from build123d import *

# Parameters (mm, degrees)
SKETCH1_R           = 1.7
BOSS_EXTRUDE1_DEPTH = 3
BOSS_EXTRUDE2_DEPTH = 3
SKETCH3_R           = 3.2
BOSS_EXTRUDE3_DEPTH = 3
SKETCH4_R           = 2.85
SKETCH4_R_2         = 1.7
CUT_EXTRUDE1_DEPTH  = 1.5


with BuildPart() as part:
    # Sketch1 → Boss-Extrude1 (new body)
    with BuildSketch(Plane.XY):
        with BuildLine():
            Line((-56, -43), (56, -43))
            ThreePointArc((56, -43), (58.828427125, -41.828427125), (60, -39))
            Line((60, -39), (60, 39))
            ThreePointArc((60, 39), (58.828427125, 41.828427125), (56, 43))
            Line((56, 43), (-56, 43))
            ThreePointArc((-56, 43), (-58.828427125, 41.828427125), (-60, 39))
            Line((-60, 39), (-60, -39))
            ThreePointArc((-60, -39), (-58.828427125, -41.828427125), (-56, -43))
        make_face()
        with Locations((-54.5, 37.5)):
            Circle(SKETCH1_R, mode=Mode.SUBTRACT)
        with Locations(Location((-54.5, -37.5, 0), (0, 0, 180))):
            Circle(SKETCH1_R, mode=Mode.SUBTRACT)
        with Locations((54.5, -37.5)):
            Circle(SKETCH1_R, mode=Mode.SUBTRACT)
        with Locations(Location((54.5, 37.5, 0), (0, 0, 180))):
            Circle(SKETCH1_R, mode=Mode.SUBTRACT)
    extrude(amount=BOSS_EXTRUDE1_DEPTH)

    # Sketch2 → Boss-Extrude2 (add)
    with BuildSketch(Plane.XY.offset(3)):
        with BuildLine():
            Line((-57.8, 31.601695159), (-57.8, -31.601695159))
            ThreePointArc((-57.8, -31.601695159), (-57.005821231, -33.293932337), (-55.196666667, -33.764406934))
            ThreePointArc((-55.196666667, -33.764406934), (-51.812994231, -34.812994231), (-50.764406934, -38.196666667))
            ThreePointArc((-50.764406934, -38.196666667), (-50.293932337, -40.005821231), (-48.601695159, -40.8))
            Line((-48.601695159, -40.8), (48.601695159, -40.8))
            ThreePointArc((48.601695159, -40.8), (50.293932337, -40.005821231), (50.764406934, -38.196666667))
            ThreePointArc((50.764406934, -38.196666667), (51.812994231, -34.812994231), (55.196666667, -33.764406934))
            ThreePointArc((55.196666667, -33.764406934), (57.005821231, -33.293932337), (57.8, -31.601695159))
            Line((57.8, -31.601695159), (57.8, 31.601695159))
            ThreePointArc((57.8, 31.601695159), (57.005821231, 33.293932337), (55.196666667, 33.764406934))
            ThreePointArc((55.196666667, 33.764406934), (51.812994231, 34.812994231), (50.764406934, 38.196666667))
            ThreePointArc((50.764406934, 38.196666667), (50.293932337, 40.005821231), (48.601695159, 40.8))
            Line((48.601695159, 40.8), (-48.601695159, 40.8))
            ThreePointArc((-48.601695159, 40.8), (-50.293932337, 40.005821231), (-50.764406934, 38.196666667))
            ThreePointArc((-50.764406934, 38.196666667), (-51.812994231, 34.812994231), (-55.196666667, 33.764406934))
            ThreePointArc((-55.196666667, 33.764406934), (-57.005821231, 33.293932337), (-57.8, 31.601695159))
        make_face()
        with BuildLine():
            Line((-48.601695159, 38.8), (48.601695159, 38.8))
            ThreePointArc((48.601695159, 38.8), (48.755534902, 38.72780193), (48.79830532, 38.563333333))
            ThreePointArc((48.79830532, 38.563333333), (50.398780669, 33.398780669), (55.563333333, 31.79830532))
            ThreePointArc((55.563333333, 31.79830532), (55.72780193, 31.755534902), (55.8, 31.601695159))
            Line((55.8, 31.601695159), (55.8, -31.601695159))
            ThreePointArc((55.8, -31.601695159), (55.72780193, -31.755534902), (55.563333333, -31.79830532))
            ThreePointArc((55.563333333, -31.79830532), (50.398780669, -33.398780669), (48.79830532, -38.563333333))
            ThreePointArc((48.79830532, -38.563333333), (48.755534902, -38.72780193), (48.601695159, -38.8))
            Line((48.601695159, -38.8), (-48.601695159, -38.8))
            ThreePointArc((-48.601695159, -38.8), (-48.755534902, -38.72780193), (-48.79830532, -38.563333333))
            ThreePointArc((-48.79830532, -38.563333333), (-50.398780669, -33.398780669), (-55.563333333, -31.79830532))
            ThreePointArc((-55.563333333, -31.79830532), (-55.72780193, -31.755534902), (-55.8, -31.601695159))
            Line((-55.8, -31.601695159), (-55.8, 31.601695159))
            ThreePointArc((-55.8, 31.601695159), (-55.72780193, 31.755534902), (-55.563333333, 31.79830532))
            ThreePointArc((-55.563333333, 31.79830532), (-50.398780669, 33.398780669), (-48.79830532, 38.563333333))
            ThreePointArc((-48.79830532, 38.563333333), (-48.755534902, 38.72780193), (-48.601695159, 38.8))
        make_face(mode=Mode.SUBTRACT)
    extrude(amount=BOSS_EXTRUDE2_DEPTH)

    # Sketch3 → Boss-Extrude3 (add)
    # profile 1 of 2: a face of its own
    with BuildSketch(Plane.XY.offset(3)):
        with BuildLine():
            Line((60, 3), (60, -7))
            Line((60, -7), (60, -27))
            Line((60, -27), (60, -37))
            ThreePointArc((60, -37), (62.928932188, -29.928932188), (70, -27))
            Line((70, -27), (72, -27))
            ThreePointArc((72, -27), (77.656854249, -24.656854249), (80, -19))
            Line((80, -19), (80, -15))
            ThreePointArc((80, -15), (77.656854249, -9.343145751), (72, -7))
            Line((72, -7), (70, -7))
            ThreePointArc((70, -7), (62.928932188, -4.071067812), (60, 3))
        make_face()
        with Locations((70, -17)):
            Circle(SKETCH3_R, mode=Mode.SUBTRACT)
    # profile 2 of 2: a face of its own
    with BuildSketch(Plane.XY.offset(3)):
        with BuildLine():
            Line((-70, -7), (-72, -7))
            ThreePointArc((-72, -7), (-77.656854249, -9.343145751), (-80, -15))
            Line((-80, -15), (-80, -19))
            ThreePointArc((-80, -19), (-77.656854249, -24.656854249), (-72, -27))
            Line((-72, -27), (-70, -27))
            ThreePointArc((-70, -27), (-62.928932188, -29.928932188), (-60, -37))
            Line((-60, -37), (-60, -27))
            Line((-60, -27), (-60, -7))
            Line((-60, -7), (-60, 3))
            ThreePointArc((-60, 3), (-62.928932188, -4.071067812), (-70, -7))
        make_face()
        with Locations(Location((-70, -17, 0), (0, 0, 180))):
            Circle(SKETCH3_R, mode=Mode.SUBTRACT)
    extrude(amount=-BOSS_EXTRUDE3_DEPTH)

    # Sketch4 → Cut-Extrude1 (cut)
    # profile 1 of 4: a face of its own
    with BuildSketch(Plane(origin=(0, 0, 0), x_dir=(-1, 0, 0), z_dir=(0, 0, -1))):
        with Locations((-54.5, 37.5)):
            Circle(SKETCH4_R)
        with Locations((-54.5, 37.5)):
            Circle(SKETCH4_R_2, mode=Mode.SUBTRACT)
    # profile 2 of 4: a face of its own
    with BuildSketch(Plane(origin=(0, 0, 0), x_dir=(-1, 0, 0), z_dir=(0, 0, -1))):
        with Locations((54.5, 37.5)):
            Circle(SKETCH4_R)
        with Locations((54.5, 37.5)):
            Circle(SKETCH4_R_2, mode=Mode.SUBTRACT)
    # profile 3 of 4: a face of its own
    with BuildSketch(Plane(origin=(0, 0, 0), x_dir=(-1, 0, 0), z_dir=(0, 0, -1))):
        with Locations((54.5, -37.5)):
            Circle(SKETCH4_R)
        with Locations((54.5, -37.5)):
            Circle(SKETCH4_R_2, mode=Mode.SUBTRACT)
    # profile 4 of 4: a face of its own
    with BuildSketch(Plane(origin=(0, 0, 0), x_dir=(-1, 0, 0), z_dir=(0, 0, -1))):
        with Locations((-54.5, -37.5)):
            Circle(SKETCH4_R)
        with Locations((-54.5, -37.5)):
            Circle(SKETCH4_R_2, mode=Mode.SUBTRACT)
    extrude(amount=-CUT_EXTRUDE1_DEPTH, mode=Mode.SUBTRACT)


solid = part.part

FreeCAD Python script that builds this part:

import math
import FreeCAD as App
import Part
import Sketcher

doc = App.newDocument("Part")
body = doc.addObject("PartDesign::Body", "Body")

# Sketch on XY plane
sketch1 = body.newObject("Sketcher::SketchObject", "Sketch")
sketch1.AttachmentSupport = (doc.getObject("XY_Plane"), [""])
sketch1.MapMode = "FlatFace"
sketch1.addGeometry(Part.LineSegment(App.Vector(-56, -43, 0), App.Vector(56, -43, 0)), False)
sketch1.addGeometry(Part.ArcOfCircle(Part.Circle(App.Vector(56, -39, 0), App.Vector(0, 0, 1), 4), math.radians(-90), math.radians(0)), False)
sketch1.addGeometry(Part.LineSegment(App.Vector(60, -39, 0), App.Vector(60, 39, 0)), False)
sketch1.addGeometry(Part.ArcOfCircle(Part.Circle(App.Vector(56, 39, 0), App.Vector(0, 0, 1), 4), math.radians(0), math.radians(90)), False)
sketch1.addGeometry(Part.LineSegment(App.Vector(56, 43, 0), App.Vector(-56, 43, 0)), False)
sketch1.addGeometry(Part.ArcOfCircle(Part.Circle(App.Vector(-56, 39, 0), App.Vector(0, 0, 1), 4), math.radians(90), math.radians(180)), False)
sketch1.addGeometry(Part.LineSegment(App.Vector(-60, 39, 0), App.Vector(-60, -39, 0)), False)
sketch1.addGeometry(Part.ArcOfCircle(Part.Circle(App.Vector(-56, -39, 0), App.Vector(0, 0, 1), 4), math.radians(180), math.radians(270)), False)
sketch1.addGeometry(Part.Circle(App.Vector(-54.5, -37.5, 0), App.Vector(0, 0, 1), 1.7), False)
sketch1.addGeometry(Part.Circle(App.Vector(54.5, -37.5, 0), App.Vector(0, 0, 1), 1.7), False)
sketch1.addGeometry(Part.Circle(App.Vector(-54.5, 37.5, 0), App.Vector(0, 0, 1), 1.7), False)
sketch1.addGeometry(Part.Circle(App.Vector(54.5, 37.5, 0), App.Vector(0, 0, 1), 1.7), False)
sketch1.addConstraint(Sketcher.Constraint("Tangent", 0, 2, 1, 1))
sketch1.addConstraint(Sketcher.Constraint("Tangent", 1, 2, 2, 1))
sketch1.addConstraint(Sketcher.Constraint("Tangent", 2, 2, 3, 1))
sketch1.addConstraint(Sketcher.Constraint("Tangent", 3, 2, 4, 1))
sketch1.addConstraint(Sketcher.Constraint("Tangent", 4, 2, 5, 1))
sketch1.addConstraint(Sketcher.Constraint("Tangent", 5, 2, 6, 1))
sketch1.addConstraint(Sketcher.Constraint("Tangent", 6, 2, 7, 1))
sketch1.addConstraint(Sketcher.Constraint("Tangent", 7, 2, 0, 1))
sketch1.addConstraint(Sketcher.Constraint("Horizontal", 0))
sketch1.addConstraint(Sketcher.Constraint("Vertical", 2))
sketch1.addConstraint(Sketcher.Constraint("Horizontal", 4))
sketch1.addConstraint(Sketcher.Constraint("Vertical", 6))
sketch1.addConstraint(Sketcher.Constraint("Equal", 1, 3))
sketch1.addConstraint(Sketcher.Constraint("Equal", 3, 5))
sketch1.addConstraint(Sketcher.Constraint("Equal", 5, 7))
sketch1.addConstraint(Sketcher.Constraint("Equal", 8, 9))
sketch1.addConstraint(Sketcher.Constraint("Equal", 9, 10))
sketch1.addConstraint(Sketcher.Constraint("Equal", 10, 11))
sketch1.addConstraint(Sketcher.Constraint("Symmetric", 1, 3, 5, 3, -1, 1))
sketch1.addConstraint(Sketcher.Constraint("Symmetric", 9, 3, 10, 3, -1, 1))
sketch1.addConstraint(Sketcher.Constraint("Symmetric", 8, 3, 11, 3, -1, 1))
sketch1.addConstraint(Sketcher.Constraint("Symmetric", 8, 3, 9, 3, -2))
sketch1.addConstraint(Sketcher.Constraint("Radius", 1, 4.0))
sketch1.addConstraint(Sketcher.Constraint("Diameter", 8, 3.4))
sketch1.addConstraint(Sketcher.Constraint("DistanceX", 0, 1, 0, 2, 112.0))
sketch1.addConstraint(Sketcher.Constraint("DistanceY", 2, 1, 2, 2, 78.0))
sketch1.addConstraint(Sketcher.Constraint("DistanceX", 8, 3, 9, 3, 109.0))
sketch1.addConstraint(Sketcher.Constraint("DistanceY", 8, 3, 10, 3, 75.0))
pad1 = body.newObject("PartDesign::Pad", "Pad")
pad1.Profile = sketch1
pad1.Length = 3

# Sketch on XY plane
sketch2 = body.newObject("Sketcher::SketchObject", "Sketch001")
sketch2.AttachmentSupport = (doc.getObject("XY_Plane"), [""])
sketch2.MapMode = "FlatFace"
sketch2.AttachmentOffset = App.Placement(App.Vector(0, 0, 3), App.Rotation())
sketch2.addGeometry(Part.LineSegment(App.Vector(-57.8, 31.6, 0), App.Vector(-57.8, -31.6, 0)), False)
sketch2.addGeometry(Part.ArcOfCircle(Part.Circle(App.Vector(-55.6, -31.6, 0), App.Vector(0, 0, 1), 2.2), math.radians(180), math.radians(281)), False)
sketch2.addGeometry(Part.ArcOfCircle(Part.Circle(App.Vector(-54.5, -37.5, 0), App.Vector(0, 0, 1), 3.8), math.radians(-11), math.radians(101)), False)
sketch2.addGeometry(Part.ArcOfCircle(Part.Circle(App.Vector(-48.6, -38.6, 0), App.Vector(0, 0, 1), 2.2), math.radians(169), math.radians(270)), False)
sketch2.addGeometry(Part.LineSegment(App.Vector(-48.6, -40.8, 0), App.Vector(48.6, -40.8, 0)), False)
sketch2.addGeometry(Part.ArcOfCircle(Part.Circle(App.Vector(48.6, -38.6, 0), App.Vector(0, 0, 1), 2.2), math.radians(-90), math.radians(11)), False)
sketch2.addGeometry(Part.ArcOfCircle(Part.Circle(App.Vector(54.5, -37.5, 0), App.Vector(0, 0, 1), 3.8), math.radians(79), math.radians(191)), False)
sketch2.addGeometry(Part.ArcOfCircle(Part.Circle(App.Vector(55.6, -31.6, 0), App.Vector(0, 0, 1), 2.2), math.radians(-101), math.radians(0)), False)
sketch2.addGeometry(Part.LineSegment(App.Vector(57.8, -31.6, 0), App.Vector(57.8, 31.6, 0)), False)
sketch2.addGeometry(Part.ArcOfCircle(Part.Circle(App.Vector(55.6, 31.6, 0), App.Vector(0, 0, 1), 2.2), math.radians(0), math.radians(101)), False)
sketch2.addGeometry(Part.ArcOfCircle(Part.Circle(App.Vector(54.5, 37.5, 0), App.Vector(0, 0, 1), 3.8), math.radians(169), math.radians(281)), False)
sketch2.addGeometry(Part.ArcOfCircle(Part.Circle(App.Vector(48.6, 38.6, 0), App.Vector(0, 0, 1), 2.2), math.radians(-11), math.radians(90)), False)
sketch2.addGeometry(Part.LineSegment(App.Vector(48.6, 40.8, 0), App.Vector(-48.6, 40.8, 0)), False)
sketch2.addGeometry(Part.ArcOfCircle(Part.Circle(App.Vector(-48.6, 38.6, 0), App.Vector(0, 0, 1), 2.2), math.radians(90), math.radians(191)), False)
sketch2.addGeometry(Part.ArcOfCircle(Part.Circle(App.Vector(-54.5, 37.5, 0), App.Vector(0, 0, 1), 3.8), math.radians(-101), math.radians(11)), False)
sketch2.addGeometry(Part.ArcOfCircle(Part.Circle(App.Vector(-55.6, 31.6, 0), App.Vector(0, 0, 1), 2.2), math.radians(79), math.radians(180)), False)
sketch2.addGeometry(Part.ArcOfCircle(Part.Circle(App.Vector(-48.6, 38.6, 0), App.Vector(0, 0, 1), 0.2), math.radians(90), math.radians(191)), False)
sketch2.addGeometry(Part.LineSegment(App.Vector(-48.6, 38.8, 0), App.Vector(48.6, 38.8, 0)), False)
sketch2.addGeometry(Part.ArcOfCircle(Part.Circle(App.Vector(48.6, 38.6, 0), App.Vector(0, 0, 1), 0.2), math.radians(-11), math.radians(90)), False)
sketch2.addGeometry(Part.ArcOfCircle(Part.Circle(App.Vector(54.5, 37.5, 0), App.Vector(0, 0, 1), 5.8), math.radians(169), math.radians(281)), False)
sketch2.addGeometry(Part.ArcOfCircle(Part.Circle(App.Vector(55.6, 31.6, 0), App.Vector(0, 0, 1), 0.2), math.radians(0), math.radians(101)), False)
sketch2.addGeometry(Part.LineSegment(App.Vector(55.8, 31.6, 0), App.Vector(55.8, -31.6, 0)), False)
sketch2.addGeometry(Part.ArcOfCircle(Part.Circle(App.Vector(55.6, -31.6, 0), App.Vector(0, 0, 1), 0.2), math.radians(-101), math.radians(0)), False)
sketch2.addGeometry(Part.ArcOfCircle(Part.Circle(App.Vector(54.5, -37.5, 0), App.Vector(0, 0, 1), 5.8), math.radians(79), math.radians(191)), False)
sketch2.addGeometry(Part.ArcOfCircle(Part.Circle(App.Vector(48.6, -38.6, 0), App.Vector(0, 0, 1), 0.2), math.radians(-90), math.radians(11)), False)
sketch2.addGeometry(Part.LineSegment(App.Vector(48.6, -38.8, 0), App.Vector(-48.6, -38.8, 0)), False)
sketch2.addGeometry(Part.ArcOfCircle(Part.Circle(App.Vector(-48.6, -38.6, 0), App.Vector(0, 0, 1), 0.2), math.radians(169), math.radians(270)), False)
sketch2.addGeometry(Part.ArcOfCircle(Part.Circle(App.Vector(-54.5, -37.5, 0), App.Vector(0, 0, 1), 5.8), math.radians(-11), math.radians(101)), False)
sketch2.addGeometry(Part.ArcOfCircle(Part.Circle(App.Vector(-55.6, -31.6, 0), App.Vector(0, 0, 1), 0.2), math.radians(-180), math.radians(-79)), False)
sketch2.addGeometry(Part.LineSegment(App.Vector(-55.8, -31.6, 0), App.Vector(-55.8, 31.6, 0)), False)
sketch2.addGeometry(Part.ArcOfCircle(Part.Circle(App.Vector(-55.6, 31.6, 0), App.Vector(0, 0, 1), 0.2), math.radians(79), math.radians(180)), False)
sketch2.addGeometry(Part.ArcOfCircle(Part.Circle(App.Vector(-54.5, 37.5, 0), App.Vector(0, 0, 1), 5.8), math.radians(-101), math.radians(11)), False)
sketch2.addConstraint(Sketcher.Constraint("Tangent", 0, 2, 1, 1))
sketch2.addConstraint(Sketcher.Constraint("Tangent", 1, 2, 2, 2))
sketch2.addConstraint(Sketcher.Constraint("Tangent", 2, 1, 3, 1))
sketch2.addConstraint(Sketcher.Constraint("Tangent", 3, 2, 4, 1))
sketch2.addConstraint(Sketcher.Constraint("Tangent", 4, 2, 5, 1))
sketch2.addConstraint(Sketcher.Constraint("Tangent", 5, 2, 6, 2))
sketch2.addConstraint(Sketcher.Constraint("Tangent", 6, 1, 7, 1))
sketch2.addConstraint(Sketcher.Constraint("Tangent", 7, 2, 8, 1))
sketch2.addConstraint(Sketcher.Constraint("Tangent", 8, 2, 9, 1))
sketch2.addConstraint(Sketcher.Constraint("Tangent", 9, 2, 10, 2))
sketch2.addConstraint(Sketcher.Constraint("Tangent", 10, 1, 11, 1))
sketch2.addConstraint(Sketcher.Constraint("Tangent", 11, 2, 12, 1))
sketch2.addConstraint(Sketcher.Constraint("Tangent", 12, 2, 13, 1))
sketch2.addConstraint(Sketcher.Constraint("Tangent", 13, 2, 14, 2))
sketch2.addConstraint(Sketcher.Constraint("Tangent", 14, 1, 15, 1))
sketch2.addConstraint(Sketcher.Constraint("Tangent", 15, 2, 0, 1))
sketch2.addConstraint(Sketcher.Constraint("Tangent", 16, 1, 17, 1))
sketch2.addConstraint(Sketcher.Constraint("Tangent", 17, 2, 18, 2))
sketch2.addConstraint(Sketcher.Constraint("Tangent", 18, 1, 19, 1))
sketch2.addConstraint(Sketcher.Constraint("Tangent", 19, 2, 20, 2))
sketch2.addConstraint(Sketcher.Constraint("Tangent", 20, 1, 21, 1))
sketch2.addConstraint(Sketcher.Constraint("Tangent", 21, 2, 22, 2))
sketch2.addConstraint(Sketcher.Constraint("Tangent", 22, 1, 23, 1))
sketch2.addConstraint(Sketcher.Constraint("Tangent", 23, 2, 24, 2))
sketch2.addConstraint(Sketcher.Constraint("Tangent", 24, 1, 25, 1))
sketch2.addConstraint(Sketcher.Constraint("Tangent", 25, 2, 26, 2))
sketch2.addConstraint(Sketcher.Constraint("Tangent", 26, 1, 27, 1))
sketch2.addConstraint(Sketcher.Constraint("Tangent", 27, 2, 28, 2))
sketch2.addConstraint(Sketcher.Constraint("Tangent", 28, 1, 29, 1))
sketch2.addConstraint(Sketcher.Constraint("Tangent", 29, 2, 30, 2))
sketch2.addConstraint(Sketcher.Constraint("Tangent", 30, 1, 31, 1))
sketch2.addConstraint(Sketcher.Constraint("Tangent", 31, 2, 16, 2))
sketch2.addConstraint(Sketcher.Constraint("Vertical", 0))
sketch2.addConstraint(Sketcher.Constraint("Horizontal", 4))
sketch2.addConstraint(Sketcher.Constraint("Vertical", 8))
sketch2.addConstraint(Sketcher.Constraint("Horizontal", 12))
sketch2.addConstraint(Sketcher.Constraint("Horizontal", 17))
sketch2.addConstraint(Sketcher.Constraint("Vertical", 21))
sketch2.addConstraint(Sketcher.Constraint("Horizontal", 25))
sketch2.addConstraint(Sketcher.Constraint("Vertical", 29))
sketch2.addConstraint(Sketcher.Constraint("Coincident", 16, 3, 13, 3))
sketch2.addConstraint(Sketcher.Constraint("Coincident", 18, 3, 11, 3))
sketch2.addConstraint(Sketcher.Constraint("Coincident", 19, 3, 10, 3))
sketch2.addConstraint(Sketcher.Constraint("Coincident", 20, 3, 9, 3))
sketch2.addConstraint(Sketcher.Constraint("Coincident", 22, 3, 7, 3))
sketch2.addConstraint(Sketcher.Constraint("Coincident", 23, 3, 6, 3))
sketch2.addConstraint(Sketcher.Constraint("Coincident", 24, 3, 5, 3))
sketch2.addConstraint(Sketcher.Constraint("Coincident", 26, 3, 3, 3))
sketch2.addConstraint(Sketcher.Constraint("Coincident", 27, 3, 2, 3))
sketch2.addConstraint(Sketcher.Constraint("Coincident", 28, 3, 1, 3))
sketch2.addConstraint(Sketcher.Constraint("Coincident", 30, 3, 15, 3))
sketch2.addConstraint(Sketcher.Constraint("Equal", 1, 3))
sketch2.addConstraint(Sketcher.Constraint("Equal", 3, 5))
sketch2.addConstraint(Sketcher.Constraint("Equal", 2, 6))
sketch2.addConstraint(Sketcher.Constraint("Equal", 5, 7))
sketch2.addConstraint(Sketcher.Constraint("Equal", 7, 9))
sketch2.addConstraint(Sketcher.Constraint("Equal", 6, 10))
sketch2.addConstraint(Sketcher.Constraint("Equal", 9, 11))
sketch2.addConstraint(Sketcher.Constraint("Equal", 11, 13))
sketch2.addConstraint(Sketcher.Constraint("Equal", 10, 14))
sketch2.addConstraint(Sketcher.Constraint("Equal", 13, 15))
sketch2.addConstraint(Sketcher.Constraint("Equal", 27, 31))
sketch2.addConstraint(Sketcher.Constraint("Symmetric", 1, 3, 9, 3, -1, 1))
sketch2.addConstraint(Sketcher.Constraint("Symmetric", 3, 3, 11, 3, -1, 1))
sketch2.addConstraint(Sketcher.Constraint("Symmetric", 6, 3, 14, 3, -1, 1))
sketch2.addConstraint(Sketcher.Constraint("Symmetric", 2, 3, 6, 3, -2))
sketch2.addConstraint(Sketcher.Constraint("Radius", 1, 2.2))
sketch2.addConstraint(Sketcher.Constraint("Radius", 2, 3.8))
sketch2.addConstraint(Sketcher.Constraint("Radius", 16, 0.2))
sketch2.addConstraint(Sketcher.Constraint("DistanceX", 2, 3, 6, 3, 109.0))
sketch2.addConstraint(Sketcher.Constraint("DistanceY", 6, 3, 10, 3, 75.0))
sketch2.addConstraint(Sketcher.Constraint("DistanceX", 1, 3, -1, 1, 55.6))
sketch2.addConstraint(Sketcher.Constraint("DistanceY", 3, 3, -1, 1, 38.6))
pad2 = body.newObject("PartDesign::Pad", "Pad001")
pad2.Profile = sketch2
pad2.Length = 3

# Sketch on XY plane
sketch3 = body.newObject("Sketcher::SketchObject", "Sketch002")
sketch3.AttachmentSupport = (doc.getObject("XY_Plane"), [""])
sketch3.MapMode = "FlatFace"
sketch3.AttachmentOffset = App.Placement(App.Vector(0, 0, 3), App.Rotation())
sketch3.addGeometry(Part.LineSegment(App.Vector(60, 3, 0), App.Vector(60, -37, 0)), False)
sketch3.addGeometry(Part.ArcOfCircle(Part.Circle(App.Vector(70, -37, 0), App.Vector(0, 0, 1), 10), math.radians(90), math.radians(180)), False)
sketch3.addGeometry(Part.LineSegment(App.Vector(70, -27, 0), App.Vector(72, -27, 0)), False)
sketch3.addGeometry(Part.ArcOfCircle(Part.Circle(App.Vector(72, -19, 0), App.Vector(0, 0, 1), 8), math.radians(-90), math.radians(0)), False)
sketch3.addGeometry(Part.LineSegment(App.Vector(80, -19, 0), App.Vector(80, -15, 0)), False)
sketch3.addGeometry(Part.ArcOfCircle(Part.Circle(App.Vector(72, -15, 0), App.Vector(0, 0, 1), 8), math.radians(0), math.radians(90)), False)
sketch3.addGeometry(Part.LineSegment(App.Vector(72, -7, 0), App.Vector(70, -7, 0)), False)
sketch3.addGeometry(Part.ArcOfCircle(Part.Circle(App.Vector(70, 3, 0), App.Vector(0, 0, 1), 10), math.radians(180), math.radians(270)), False)
sketch3.addGeometry(Part.Circle(App.Vector(70, -17, 0), App.Vector(0, 0, 1), 3.2), False)
sketch3.addGeometry(Part.LineSegment(App.Vector(-70, -7, 0), App.Vector(-72, -7, 0)), False)
sketch3.addGeometry(Part.ArcOfCircle(Part.Circle(App.Vector(-72, -15, 0), App.Vector(0, 0, 1), 8), math.radians(90), math.radians(180)), False)
sketch3.addGeometry(Part.LineSegment(App.Vector(-80, -15, 0), App.Vector(-80, -19, 0)), False)
sketch3.addGeometry(Part.ArcOfCircle(Part.Circle(App.Vector(-72, -19, 0), App.Vector(0, 0, 1), 8), math.radians(-180), math.radians(-90)), False)
sketch3.addGeometry(Part.LineSegment(App.Vector(-72, -27, 0), App.Vector(-70, -27, 0)), False)
sketch3.addGeometry(Part.ArcOfCircle(Part.Circle(App.Vector(-70, -37, 0), App.Vector(0, 0, 1), 10), math.radians(0), math.radians(90)), False)
sketch3.addGeometry(Part.LineSegment(App.Vector(-60, -37, 0), App.Vector(-60, 3, 0)), False)
sketch3.addGeometry(Part.ArcOfCircle(Part.Circle(App.Vector(-70, 3, 0), App.Vector(0, 0, 1), 10), math.radians(-90), math.radians(0)), False)
sketch3.addGeometry(Part.Circle(App.Vector(-70, -17, 0), App.Vector(0, 0, 1), 3.2), False)
sketch3.addConstraint(Sketcher.Constraint("Tangent", 0, 2, 1, 2))
sketch3.addConstraint(Sketcher.Constraint("Tangent", 1, 1, 2, 1))
sketch3.addConstraint(Sketcher.Constraint("Tangent", 2, 2, 3, 1))
sketch3.addConstraint(Sketcher.Constraint("Tangent", 3, 2, 4, 1))
sketch3.addConstraint(Sketcher.Constraint("Tangent", 4, 2, 5, 1))
sketch3.addConstraint(Sketcher.Constraint("Tangent", 5, 2, 6, 1))
sketch3.addConstraint(Sketcher.Constraint("Tangent", 6, 2, 7, 2))
sketch3.addConstraint(Sketcher.Constraint("Tangent", 7, 1, 0, 1))
sketch3.addConstraint(Sketcher.Constraint("Tangent", 9, 2, 10, 1))
sketch3.addConstraint(Sketcher.Constraint("Tangent", 10, 2, 11, 1))
sketch3.addConstraint(Sketcher.Constraint("Tangent", 11, 2, 12, 1))
sketch3.addConstraint(Sketcher.Constraint("Tangent", 12, 2, 13, 1))
sketch3.addConstraint(Sketcher.Constraint("Tangent", 13, 2, 14, 2))
sketch3.addConstraint(Sketcher.Constraint("Tangent", 14, 1, 15, 1))
sketch3.addConstraint(Sketcher.Constraint("Tangent", 15, 2, 16, 2))
sketch3.addConstraint(Sketcher.Constraint("Tangent", 16, 1, 9, 1))
sketch3.addConstraint(Sketcher.Constraint("Vertical", 0))
sketch3.addConstraint(Sketcher.Constraint("Horizontal", 2))
sketch3.addConstraint(Sketcher.Constraint("Vertical", 4))
sketch3.addConstraint(Sketcher.Constraint("Horizontal", 6))
sketch3.addConstraint(Sketcher.Constraint("Horizontal", 9))
sketch3.addConstraint(Sketcher.Constraint("Vertical", 11))
sketch3.addConstraint(Sketcher.Constraint("Horizontal", 13))
sketch3.addConstraint(Sketcher.Constraint("Vertical", 15))
sketch3.addConstraint(Sketcher.Constraint("Equal", 3, 5))
sketch3.addConstraint(Sketcher.Constraint("Equal", 1, 7))
sketch3.addConstraint(Sketcher.Constraint("Equal", 5, 10))
sketch3.addConstraint(Sketcher.Constraint("Equal", 10, 12))
sketch3.addConstraint(Sketcher.Constraint("Equal", 7, 14))
sketch3.addConstraint(Sketcher.Constraint("Equal", 14, 16))
sketch3.addConstraint(Sketcher.Constraint("Equal", 8, 17))
sketch3.addConstraint(Sketcher.Constraint("Symmetric", 5, 3, 10, 3, -2))
sketch3.addConstraint(Sketcher.Constraint("Symmetric", 1, 3, 14, 3, -2))
sketch3.addConstraint(Sketcher.Constraint("Symmetric", 8, 3, 17, 3, -2))
sketch3.addConstraint(Sketcher.Constraint("Vertical", 7, 3, 8, 3))
sketch3.addConstraint(Sketcher.Constraint("Radius", 1, 10.0))
sketch3.addConstraint(Sketcher.Constraint("Radius", 3, 8.0))
sketch3.addConstraint(Sketcher.Constraint("Diameter", 8, 6.4))
sketch3.addConstraint(Sketcher.Constraint("DistanceX", 2, 1, 2, 2, 2.0))
sketch3.addConstraint(Sketcher.Constraint("DistanceY", 0, 2, 0, 1, 40.0))
sketch3.addConstraint(Sketcher.Constraint("DistanceX", -1, 1, 1, 3, 70.0))
sketch3.addConstraint(Sketcher.Constraint("DistanceY", 1, 3, -1, 1, 37.0))
sketch3.addConstraint(Sketcher.Constraint("DistanceY", 8, 3, -1, 1, 17.0))
pad3 = body.newObject("PartDesign::Pad", "Pad002")
pad3.Profile = sketch3
pad3.Length = 3
pad3.Reversed = True

# Sketch on XY plane
sketch4 = body.newObject("Sketcher::SketchObject", "Sketch003")
sketch4.AttachmentSupport = (doc.getObject("XY_Plane"), [""])
sketch4.MapMode = "FlatFace"
sketch4.addGeometry(Part.Circle(App.Vector(54.5, 37.5, 0), App.Vector(0, 0, 1), 2.9), False)
sketch4.addGeometry(Part.Circle(App.Vector(54.5, 37.5, 0), App.Vector(0, 0, 1), 1.7), False)
sketch4.addGeometry(Part.Circle(App.Vector(-54.5, 37.5, 0), App.Vector(0, 0, 1), 2.9), False)
sketch4.addGeometry(Part.Circle(App.Vector(-54.5, 37.5, 0), App.Vector(0, 0, 1), 1.7), False)
sketch4.addGeometry(Part.Circle(App.Vector(-54.5, -37.5, 0), App.Vector(0, 0, 1), 2.9), False)
sketch4.addGeometry(Part.Circle(App.Vector(-54.5, -37.5, 0), App.Vector(0, 0, 1), 1.7), False)
sketch4.addGeometry(Part.Circle(App.Vector(54.5, -37.5, 0), App.Vector(0, 0, 1), 2.9), False)
sketch4.addGeometry(Part.Circle(App.Vector(54.5, -37.5, 0), App.Vector(0, 0, 1), 1.7), False)
sketch4.addConstraint(Sketcher.Constraint("Coincident", 1, 3, 0, 3))
sketch4.addConstraint(Sketcher.Constraint("Coincident", 3, 3, 2, 3))
sketch4.addConstraint(Sketcher.Constraint("Coincident", 5, 3, 4, 3))
sketch4.addConstraint(Sketcher.Constraint("Coincident", 7, 3, 6, 3))
sketch4.addConstraint(Sketcher.Constraint("Equal", 0, 2))
sketch4.addConstraint(Sketcher.Constraint("Equal", 1, 3))
sketch4.addConstraint(Sketcher.Constraint("Equal", 2, 4))
sketch4.addConstraint(Sketcher.Constraint("Equal", 3, 5))
sketch4.addConstraint(Sketcher.Constraint("Equal", 4, 6))
sketch4.addConstraint(Sketcher.Constraint("Equal", 5, 7))
sketch4.addConstraint(Sketcher.Constraint("Symmetric", 0, 3, 4, 3, -1, 1))
sketch4.addConstraint(Sketcher.Constraint("Symmetric", 2, 3, 6, 3, -1, 1))
sketch4.addConstraint(Sketcher.Constraint("Symmetric", 0, 3, 2, 3, -2))
sketch4.addConstraint(Sketcher.Constraint("Diameter", 0, 5.7))
sketch4.addConstraint(Sketcher.Constraint("Diameter", 1, 3.4))
sketch4.addConstraint(Sketcher.Constraint("DistanceX", 2, 3, 0, 3, 109.0))
sketch4.addConstraint(Sketcher.Constraint("DistanceY", 4, 3, 2, 3, 75.0))
pocket1 = body.newObject("PartDesign::Pocket", "Pocket")
pocket1.Profile = sketch4
pocket1.Length = 1.5
pocket1.Reversed = True

doc.recompute()
